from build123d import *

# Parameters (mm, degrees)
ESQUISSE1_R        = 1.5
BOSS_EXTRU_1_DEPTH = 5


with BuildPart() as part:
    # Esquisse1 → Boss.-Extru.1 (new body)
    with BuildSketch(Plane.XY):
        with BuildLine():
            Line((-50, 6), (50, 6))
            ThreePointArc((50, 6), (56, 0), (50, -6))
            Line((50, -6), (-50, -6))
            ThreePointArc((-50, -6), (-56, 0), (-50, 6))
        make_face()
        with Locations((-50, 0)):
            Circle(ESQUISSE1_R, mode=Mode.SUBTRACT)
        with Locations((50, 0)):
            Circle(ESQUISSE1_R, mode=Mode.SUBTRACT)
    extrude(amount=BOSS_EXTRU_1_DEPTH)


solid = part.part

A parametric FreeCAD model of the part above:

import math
import FreeCAD as App
import Part
import Sketcher

V = App.Vector
Q = App.Units.Quantity

doc = App.newDocument("Part")
body = doc.addObject("PartDesign::Body", "Body")

# Sketch on XY plane
sketch1 = doc.addObject("Sketcher::SketchObject", "Sketch")
body.addObject(sketch1)
sketch1.AttachmentSupport = (doc.XY_Plane, [""])
sketch1.MapMode = "FlatFace"
sketch1.addGeometry([
    Part.LineSegment(V(50, 6, 0), V(-50, 6, 0)),  # 0
    Part.ArcOfCircle(Part.Circle(V(-50, 0, 0), V(0, 0, 1), 6), math.radians(90), math.radians(270)),  # 1
    Part.LineSegment(V(-50, -6, 0), V(50, -6, 0)),  # 2
    Part.ArcOfCircle(Part.Circle(V(50, 0, 0), V(0, 0, 1), 6), math.radians(-90), math.radians(90)),  # 3
    Part.Circle(V(50, 0, 0), V(0, 0, 1), 1.5),  # 4
    Part.Circle(V(-50, 0, 0), V(0, 0, 1), 1.5),  # 5
], False)
sketch1.addConstraint([
    Sketcher.Constraint("Tangent", 0, 2, 1, 1),
    Sketcher.Constraint("Tangent", 1, 2, 2, 1),
    Sketcher.Constraint("Tangent", 2, 2, 3, 1),
    Sketcher.Constraint("Tangent", 3, 2, 0, 1),
    Sketcher.Constraint("Horizontal", 0),
    Sketcher.Constraint("Horizontal", 2),
    Sketcher.Constraint("Coincident", 4, 3, 3, 3),
    Sketcher.Constraint("Coincident", 5, 3, 1, 3),
    Sketcher.Constraint("Equal", 4, 5),
    Sketcher.Constraint("Symmetric", 1, 3, 3, 3, -1, 1),
    Sketcher.Constraint("Diameter", 4, Q("3 mm")),
    Sketcher.Constraint("Radius", 1, Q("6 mm")),
    Sketcher.Constraint("DistanceX", 0, 2, 0, 1, Q("100 mm")),
])
pad1 = doc.addObject("PartDesign::Pad", "Pad")
body.addObject(pad1)
pad1.Profile = sketch1
pad1.Length = 5

doc.recompute()
